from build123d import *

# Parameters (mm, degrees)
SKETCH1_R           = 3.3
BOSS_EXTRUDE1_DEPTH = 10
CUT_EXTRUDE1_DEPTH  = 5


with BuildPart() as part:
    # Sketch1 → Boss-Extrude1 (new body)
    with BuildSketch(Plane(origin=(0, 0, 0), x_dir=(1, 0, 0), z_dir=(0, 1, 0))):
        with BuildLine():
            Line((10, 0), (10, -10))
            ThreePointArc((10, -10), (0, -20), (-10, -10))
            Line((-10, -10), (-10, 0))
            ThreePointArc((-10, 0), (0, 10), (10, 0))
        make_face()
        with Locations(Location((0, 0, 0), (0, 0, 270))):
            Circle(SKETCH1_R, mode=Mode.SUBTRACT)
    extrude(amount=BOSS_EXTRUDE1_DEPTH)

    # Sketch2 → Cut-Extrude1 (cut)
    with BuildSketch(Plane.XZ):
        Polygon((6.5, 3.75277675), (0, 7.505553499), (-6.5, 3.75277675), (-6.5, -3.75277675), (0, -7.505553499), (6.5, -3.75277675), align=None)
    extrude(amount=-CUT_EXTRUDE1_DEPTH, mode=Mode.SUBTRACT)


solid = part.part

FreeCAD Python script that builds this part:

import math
import FreeCAD as App
import Part
import Sketcher
Q = App.Units.Quantity


def add_polygon(sketch, points):
    """Adds a closed chain of lines whose ends are joined by coincident constraints."""
    first, n = sketch.GeometryCount, len(points)
    for a, b in zip(points, points[1:] + points[:1]):
        sketch.addGeometry(Part.LineSegment(App.Vector(*a, 0), App.Vector(*b, 0)), False)
    for i in range(n):
        sketch.addConstraint(Sketcher.Constraint("Coincident", first + i, 2, first + (i + 1) % n, 1))

doc = App.newDocument("Part")
body = doc.addObject("PartDesign::Body", "Body")

sketch1 = doc.addObject("Sketcher::SketchObject", "Sketch")
body.addObject(sketch1)
sketch1.AttachmentSupport = (doc.XZ_Plane, [""])
sketch1.MapMode = "FlatFace"
sketch1.addGeometry([
    Part.LineSegment(App.Vector(10, 10, 0), App.Vector(10, 0, 0)),
    Part.ArcOfCircle(Part.Circle(App.Vector(0, 0, 0), App.Vector(0, 0, 1), 10), math.radians(180), math.radians(360)),
    Part.LineSegment(App.Vector(-10, 0, 0), App.Vector(-10, 10, 0)),
    Part.ArcOfCircle(Part.Circle(App.Vector(0, 10, 0), App.Vector(0, 0, 1), 10), math.radians(0), math.radians(180)),
    Part.Circle(App.Vector(0, 0, 0), App.Vector(0, 0, 1), 3.3),
], False)
sketch1.addConstraint([
    Sketcher.Constraint("Tangent", 0, 2, 1, 2),
    Sketcher.Constraint("Tangent", 1, 1, 2, 1),
    Sketcher.Constraint("Tangent", 2, 2, 3, 2),
    Sketcher.Constraint("Tangent", 3, 1, 0, 1),
    Sketcher.Constraint("Vertical", 0),
    Sketcher.Constraint("Vertical", 2),
    Sketcher.Constraint("Coincident", 1, 3, -1, 1),
    Sketcher.Constraint("Coincident", 4, 3, -1, 1),
    Sketcher.Constraint("Radius", 1, Q("10 mm")),
    Sketcher.Constraint("Diameter", 4, Q("6.6 mm")),
    Sketcher.Constraint("DistanceY", 0, 2, 0, 1, Q("10 mm")),
])
pad1 = doc.addObject("PartDesign::Pad", "Pad")
body.addObject(pad1)
pad1.Profile = sketch1
pad1.Length = 10
pad1.Reversed = True

sketch2 = doc.addObject("Sketcher::SketchObject", "Sketch001")
body.addObject(sketch2)
sketch2.AttachmentSupport = (doc.XZ_Plane, [""])
sketch2.MapMode = "FlatFace"
add_polygon(sketch2, [(6, 4), (0, 8), (-6, 4), (-6, -4), (0, -8), (6, -4)])
sketch2.addConstraint([
    Sketcher.Constraint("Vertical", 2),
    Sketcher.Constraint("Vertical", 5),
    Sketcher.Constraint("Symmetric", 0, 2, 3, 2, -1, 1),
    Sketcher.Constraint("Symmetric", 1, 2, 4, 2, -1, 1),
    Sketcher.Constraint("PointOnObject", 0, 2, -2),
    Sketcher.Constraint("Parallel", 0, 3),
    Sketcher.Constraint("Horizontal", 2, 2, 4, 2),
    Sketcher.Constraint("Angle", 0, Q("150 deg")),
    Sketcher.Constraint("DistanceX", 2, 2, 4, 2, Q("13 mm")),
    Sketcher.Constraint("DistanceY", 2, 2, 2, 1, Q("7.505554 mm")),
])
pocket1 = doc.addObject("PartDesign::Pocket", "Pocket")
body.addObject(pocket1)
pocket1.Profile = sketch2
pocket1.Length = 5

doc.recompute()
